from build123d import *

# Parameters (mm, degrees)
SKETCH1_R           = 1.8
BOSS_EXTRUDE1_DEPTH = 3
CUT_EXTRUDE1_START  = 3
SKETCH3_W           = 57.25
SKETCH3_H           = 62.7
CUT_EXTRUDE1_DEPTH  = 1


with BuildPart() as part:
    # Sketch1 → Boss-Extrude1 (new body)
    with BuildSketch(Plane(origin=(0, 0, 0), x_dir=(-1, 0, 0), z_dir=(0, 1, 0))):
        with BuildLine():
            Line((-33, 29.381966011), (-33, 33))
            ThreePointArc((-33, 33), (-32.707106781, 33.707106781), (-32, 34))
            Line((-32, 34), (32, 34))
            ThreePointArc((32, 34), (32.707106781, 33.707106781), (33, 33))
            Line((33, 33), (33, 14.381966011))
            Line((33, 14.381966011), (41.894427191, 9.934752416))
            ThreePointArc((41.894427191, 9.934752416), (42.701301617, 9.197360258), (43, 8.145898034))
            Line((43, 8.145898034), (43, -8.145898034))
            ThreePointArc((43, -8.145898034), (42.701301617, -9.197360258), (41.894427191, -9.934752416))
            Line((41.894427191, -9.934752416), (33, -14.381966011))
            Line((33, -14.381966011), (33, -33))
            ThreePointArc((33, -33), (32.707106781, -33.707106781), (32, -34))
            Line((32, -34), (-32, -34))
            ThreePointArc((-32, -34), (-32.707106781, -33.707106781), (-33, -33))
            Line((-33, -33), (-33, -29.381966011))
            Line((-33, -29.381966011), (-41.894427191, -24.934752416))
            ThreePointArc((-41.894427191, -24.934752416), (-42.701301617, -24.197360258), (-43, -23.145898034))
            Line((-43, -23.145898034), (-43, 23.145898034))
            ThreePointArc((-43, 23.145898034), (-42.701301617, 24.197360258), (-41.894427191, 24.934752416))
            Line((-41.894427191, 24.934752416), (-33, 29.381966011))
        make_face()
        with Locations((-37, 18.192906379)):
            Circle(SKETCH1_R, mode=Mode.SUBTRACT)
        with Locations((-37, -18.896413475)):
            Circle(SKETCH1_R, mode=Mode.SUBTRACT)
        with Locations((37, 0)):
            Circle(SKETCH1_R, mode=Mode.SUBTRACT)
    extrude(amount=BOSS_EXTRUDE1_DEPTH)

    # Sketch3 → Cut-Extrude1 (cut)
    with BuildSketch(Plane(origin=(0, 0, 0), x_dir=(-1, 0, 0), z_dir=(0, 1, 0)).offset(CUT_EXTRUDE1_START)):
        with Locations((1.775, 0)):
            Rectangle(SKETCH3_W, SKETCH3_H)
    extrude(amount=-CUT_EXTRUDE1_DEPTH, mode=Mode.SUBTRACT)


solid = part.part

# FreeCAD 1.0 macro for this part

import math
import FreeCAD as App
import Part
import Sketcher

V = App.Vector


def add_polygon(sketch, points):
    """Adds a closed chain of lines whose ends are joined by coincident constraints."""
    first, n = sketch.GeometryCount, len(points)
    for a, b in zip(points, points[1:] + points[:1]):
        sketch.addGeometry(Part.LineSegment(App.Vector(*a, 0), App.Vector(*b, 0)), False)
    for i in range(n):
        sketch.addConstraint(Sketcher.Constraint("Coincident", first + i, 2, first + (i + 1) % n, 1))

doc = App.newDocument("Part")
body = doc.addObject("PartDesign::Body", "Body")

# Sketch on XZ plane
sketch1 = body.newObject("Sketcher::SketchObject", "Sketch")
sketch1.AttachmentSupport = (doc.getObject("XZ_Plane"), [""])
sketch1.MapMode = "FlatFace"
sketch1.addGeometry([
    Part.LineSegment(V(33, 33, 0), V(33, 29.4, 0)),  # 0
    Part.LineSegment(V(33, 29.4, 0), V(41.9, 24.9, 0)),  # 1
    Part.ArcOfCircle(Part.Circle(V(41, 23.1, 0), V(0, 0, 1), 2), math.radians(0), math.radians(63)),  # 2
    Part.LineSegment(V(43, 23.1, 0), V(43, -23.1, 0)),  # 3
    Part.ArcOfCircle(Part.Circle(V(41, -23.1, 0), V(0, 0, 1), 2), math.radians(-63), math.radians(0)),  # 4
    Part.LineSegment(V(41.9, -24.9, 0), V(33, -29.4, 0)),  # 5
    Part.LineSegment(V(33, -29.4, 0), V(33, -33, 0)),  # 6
    Part.ArcOfCircle(Part.Circle(V(32, -33, 0), V(0, 0, 1), 1), math.radians(-90), math.radians(0)),  # 7
    Part.LineSegment(V(32, -34, 0), V(-32, -34, 0)),  # 8
    Part.ArcOfCircle(Part.Circle(V(-32, -33, 0), V(0, 0, 1), 1), math.radians(-180), math.radians(-90)),  # 9
    Part.LineSegment(V(-33, -33, 0), V(-33, -14.4, 0)),  # 10
    Part.LineSegment(V(-33, -14.4, 0), V(-41.9, -9.9, 0)),  # 11
    Part.ArcOfCircle(Part.Circle(V(-41, -8.1, 0), V(0, 0, 1), 2), math.radians(180), math.radians(243)),  # 12
    Part.LineSegment(V(-43, -8.1, 0), V(-43, 8.1, 0)),  # 13
    Part.ArcOfCircle(Part.Circle(V(-41, 8.1, 0), V(0, 0, 1), 2), math.radians(117), math.radians(180)),  # 14
    Part.LineSegment(V(-41.9, 9.9, 0), V(-33, 14.4, 0)),  # 15
    Part.LineSegment(V(-33, 14.4, 0), V(-33, 33, 0)),  # 16
    Part.ArcOfCircle(Part.Circle(V(-32, 33, 0), V(0, 0, 1), 1), math.radians(90), math.radians(180)),  # 17
    Part.LineSegment(V(-32, 34, 0), V(32, 34, 0)),  # 18
    Part.ArcOfCircle(Part.Circle(V(32, 33, 0), V(0, 0, 1), 1), math.radians(0), math.radians(90)),  # 19
    Part.Circle(V(37, -18.9, 0), V(0, 0, 1), 1.8),  # 20
    Part.Circle(V(-37, 0, 0), V(0, 0, 1), 1.8),  # 21
    Part.Circle(V(37, 18.2, 0), V(0, 0, 1), 1.8),  # 22
], False)
sketch1.addConstraint([
    Sketcher.Constraint("Coincident", 0, 2, 1, 1),
    Sketcher.Constraint("Tangent", 1, 2, 2, 2),
    Sketcher.Constraint("Tangent", 2, 1, 3, 1),
    Sketcher.Constraint("Tangent", 3, 2, 4, 2),
    Sketcher.Constraint("Tangent", 4, 1, 5, 1),
    Sketcher.Constraint("Coincident", 5, 2, 6, 1),
    Sketcher.Constraint("Tangent", 6, 2, 7, 2),
    Sketcher.Constraint("Tangent", 7, 1, 8, 1),
    Sketcher.Constraint("Tangent", 8, 2, 9, 2),
    Sketcher.Constraint("Tangent", 9, 1, 10, 1),
    Sketcher.Constraint("Coincident", 10, 2, 11, 1),
    Sketcher.Constraint("Tangent", 11, 2, 12, 2),
    Sketcher.Constraint("Tangent", 12, 1, 13, 1),
    Sketcher.Constraint("Tangent", 13, 2, 14, 2),
    Sketcher.Constraint("Tangent", 14, 1, 15, 1),
    Sketcher.Constraint("Coincident", 15, 2, 16, 1),
    Sketcher.Constraint("Tangent", 16, 2, 17, 2),
    Sketcher.Constraint("Tangent", 17, 1, 18, 1),
    Sketcher.Constraint("Tangent", 18, 2, 19, 2),
    Sketcher.Constraint("Tangent", 19, 1, 0, 1),
    Sketcher.Constraint("Vertical", 0),
    Sketcher.Constraint("Vertical", 3),
    Sketcher.Constraint("Vertical", 6),
    Sketcher.Constraint("Horizontal", 8),
    Sketcher.Constraint("Vertical", 10),
    Sketcher.Constraint("Vertical", 13),
    Sketcher.Constraint("Vertical", 16),
    Sketcher.Constraint("Horizontal", 18),
    Sketcher.Constraint("Equal", 2, 4),
    Sketcher.Constraint("Equal", 7, 9),
    Sketcher.Constraint("Equal", 4, 12),
    Sketcher.Constraint("Equal", 12, 14),
    Sketcher.Constraint("Equal", 9, 17),
    Sketcher.Constraint("Equal", 17, 19),
    Sketcher.Constraint("Equal", 20, 21),
    Sketcher.Constraint("Equal", 21, 22),
    Sketcher.Constraint("Symmetric", 7, 3, 17, 3, -1, 1),
    Sketcher.Constraint("Symmetric", 1, 2, 4, 1, -1),
    Sketcher.Constraint("Symmetric", 11, 2, 14, 1, -1),
    Sketcher.Constraint("PointOnObject", 21, 3, -1),
    Sketcher.Constraint("Parallel", 1, 11),
    Sketcher.Constraint("Vertical", 9, 3, 17, 3),
    Sketcher.Constraint("Vertical", 7, 3, 19, 3),
    Sketcher.Constraint("Vertical", 20, 3, 22, 3),
    Sketcher.Constraint("Equal", 5, 11),
    Sketcher.Constraint("Radius", 2, 2.0),
    Sketcher.Constraint("Radius", 7, 1.0),
    Sketcher.Constraint("Diameter", 20, 3.6),
    Sketcher.Constraint("DistanceX", 8, 2, 8, 1, 64.0),
    Sketcher.Constraint("DistanceX", -1, 1, 2, 3, 41.0),
    Sketcher.Constraint("DistanceY", 7, 3, -1, 1, 33.0),
    Sketcher.Constraint("DistanceX", -1, 1, 20, 3, 37.0),
    Sketcher.Constraint("DistanceX", 21, 3, -1, 1, 37.0),
    Sketcher.Constraint("DistanceY", 4, 3, 12, 3, 15.0),
    Sketcher.Constraint("DistanceY", -1, 1, 2, 3, 23.145898),
    Sketcher.Constraint("Distance", 1, 9.944272),
    Sketcher.Constraint("DistanceY", 20, 3, 2, 3, 42.042312),
    Sketcher.Constraint("DistanceY", 22, 3, 2, 3, 4.952992),
])
pad1 = body.newObject("PartDesign::Pad", "Pad")
pad1.Profile = sketch1
pad1.Length = 3
pad1.Reversed = True

# Sketch on XZ plane
sketch2 = body.newObject("Sketcher::SketchObject", "Sketch001")
sketch2.AttachmentSupport = (doc.getObject("XZ_Plane"), [""])
sketch2.MapMode = "FlatFace"
sketch2.AttachmentOffset = App.Placement(V(0, 0, -3), App.Rotation())
add_polygon(sketch2, [(27, 31), (27, -31), (-30, -31), (-30, 31)])  # lines 0-3
sketch2.addConstraint([
    Sketcher.Constraint("Vertical", 0),
    Sketcher.Constraint("Horizontal", 1),
    Sketcher.Constraint("Vertical", 2),
    Sketcher.Constraint("Horizontal", 3),
    Sketcher.Constraint("DistanceY", 0, 2, 0, 1, 62.7),
    Sketcher.Constraint("DistanceX", 1, 2, 1, 1, 57.25),
    Sketcher.Constraint("DistanceX", 1, 2, -1, 1, 30.4),
    Sketcher.Constraint("DistanceY", 0, 2, -1, 1, 31.35),
])
pocket1 = body.newObject("PartDesign::Pocket", "Pocket")
pocket1.Profile = sketch2
pocket1.Length = 1
pocket1.Reversed = True

doc.recompute()
